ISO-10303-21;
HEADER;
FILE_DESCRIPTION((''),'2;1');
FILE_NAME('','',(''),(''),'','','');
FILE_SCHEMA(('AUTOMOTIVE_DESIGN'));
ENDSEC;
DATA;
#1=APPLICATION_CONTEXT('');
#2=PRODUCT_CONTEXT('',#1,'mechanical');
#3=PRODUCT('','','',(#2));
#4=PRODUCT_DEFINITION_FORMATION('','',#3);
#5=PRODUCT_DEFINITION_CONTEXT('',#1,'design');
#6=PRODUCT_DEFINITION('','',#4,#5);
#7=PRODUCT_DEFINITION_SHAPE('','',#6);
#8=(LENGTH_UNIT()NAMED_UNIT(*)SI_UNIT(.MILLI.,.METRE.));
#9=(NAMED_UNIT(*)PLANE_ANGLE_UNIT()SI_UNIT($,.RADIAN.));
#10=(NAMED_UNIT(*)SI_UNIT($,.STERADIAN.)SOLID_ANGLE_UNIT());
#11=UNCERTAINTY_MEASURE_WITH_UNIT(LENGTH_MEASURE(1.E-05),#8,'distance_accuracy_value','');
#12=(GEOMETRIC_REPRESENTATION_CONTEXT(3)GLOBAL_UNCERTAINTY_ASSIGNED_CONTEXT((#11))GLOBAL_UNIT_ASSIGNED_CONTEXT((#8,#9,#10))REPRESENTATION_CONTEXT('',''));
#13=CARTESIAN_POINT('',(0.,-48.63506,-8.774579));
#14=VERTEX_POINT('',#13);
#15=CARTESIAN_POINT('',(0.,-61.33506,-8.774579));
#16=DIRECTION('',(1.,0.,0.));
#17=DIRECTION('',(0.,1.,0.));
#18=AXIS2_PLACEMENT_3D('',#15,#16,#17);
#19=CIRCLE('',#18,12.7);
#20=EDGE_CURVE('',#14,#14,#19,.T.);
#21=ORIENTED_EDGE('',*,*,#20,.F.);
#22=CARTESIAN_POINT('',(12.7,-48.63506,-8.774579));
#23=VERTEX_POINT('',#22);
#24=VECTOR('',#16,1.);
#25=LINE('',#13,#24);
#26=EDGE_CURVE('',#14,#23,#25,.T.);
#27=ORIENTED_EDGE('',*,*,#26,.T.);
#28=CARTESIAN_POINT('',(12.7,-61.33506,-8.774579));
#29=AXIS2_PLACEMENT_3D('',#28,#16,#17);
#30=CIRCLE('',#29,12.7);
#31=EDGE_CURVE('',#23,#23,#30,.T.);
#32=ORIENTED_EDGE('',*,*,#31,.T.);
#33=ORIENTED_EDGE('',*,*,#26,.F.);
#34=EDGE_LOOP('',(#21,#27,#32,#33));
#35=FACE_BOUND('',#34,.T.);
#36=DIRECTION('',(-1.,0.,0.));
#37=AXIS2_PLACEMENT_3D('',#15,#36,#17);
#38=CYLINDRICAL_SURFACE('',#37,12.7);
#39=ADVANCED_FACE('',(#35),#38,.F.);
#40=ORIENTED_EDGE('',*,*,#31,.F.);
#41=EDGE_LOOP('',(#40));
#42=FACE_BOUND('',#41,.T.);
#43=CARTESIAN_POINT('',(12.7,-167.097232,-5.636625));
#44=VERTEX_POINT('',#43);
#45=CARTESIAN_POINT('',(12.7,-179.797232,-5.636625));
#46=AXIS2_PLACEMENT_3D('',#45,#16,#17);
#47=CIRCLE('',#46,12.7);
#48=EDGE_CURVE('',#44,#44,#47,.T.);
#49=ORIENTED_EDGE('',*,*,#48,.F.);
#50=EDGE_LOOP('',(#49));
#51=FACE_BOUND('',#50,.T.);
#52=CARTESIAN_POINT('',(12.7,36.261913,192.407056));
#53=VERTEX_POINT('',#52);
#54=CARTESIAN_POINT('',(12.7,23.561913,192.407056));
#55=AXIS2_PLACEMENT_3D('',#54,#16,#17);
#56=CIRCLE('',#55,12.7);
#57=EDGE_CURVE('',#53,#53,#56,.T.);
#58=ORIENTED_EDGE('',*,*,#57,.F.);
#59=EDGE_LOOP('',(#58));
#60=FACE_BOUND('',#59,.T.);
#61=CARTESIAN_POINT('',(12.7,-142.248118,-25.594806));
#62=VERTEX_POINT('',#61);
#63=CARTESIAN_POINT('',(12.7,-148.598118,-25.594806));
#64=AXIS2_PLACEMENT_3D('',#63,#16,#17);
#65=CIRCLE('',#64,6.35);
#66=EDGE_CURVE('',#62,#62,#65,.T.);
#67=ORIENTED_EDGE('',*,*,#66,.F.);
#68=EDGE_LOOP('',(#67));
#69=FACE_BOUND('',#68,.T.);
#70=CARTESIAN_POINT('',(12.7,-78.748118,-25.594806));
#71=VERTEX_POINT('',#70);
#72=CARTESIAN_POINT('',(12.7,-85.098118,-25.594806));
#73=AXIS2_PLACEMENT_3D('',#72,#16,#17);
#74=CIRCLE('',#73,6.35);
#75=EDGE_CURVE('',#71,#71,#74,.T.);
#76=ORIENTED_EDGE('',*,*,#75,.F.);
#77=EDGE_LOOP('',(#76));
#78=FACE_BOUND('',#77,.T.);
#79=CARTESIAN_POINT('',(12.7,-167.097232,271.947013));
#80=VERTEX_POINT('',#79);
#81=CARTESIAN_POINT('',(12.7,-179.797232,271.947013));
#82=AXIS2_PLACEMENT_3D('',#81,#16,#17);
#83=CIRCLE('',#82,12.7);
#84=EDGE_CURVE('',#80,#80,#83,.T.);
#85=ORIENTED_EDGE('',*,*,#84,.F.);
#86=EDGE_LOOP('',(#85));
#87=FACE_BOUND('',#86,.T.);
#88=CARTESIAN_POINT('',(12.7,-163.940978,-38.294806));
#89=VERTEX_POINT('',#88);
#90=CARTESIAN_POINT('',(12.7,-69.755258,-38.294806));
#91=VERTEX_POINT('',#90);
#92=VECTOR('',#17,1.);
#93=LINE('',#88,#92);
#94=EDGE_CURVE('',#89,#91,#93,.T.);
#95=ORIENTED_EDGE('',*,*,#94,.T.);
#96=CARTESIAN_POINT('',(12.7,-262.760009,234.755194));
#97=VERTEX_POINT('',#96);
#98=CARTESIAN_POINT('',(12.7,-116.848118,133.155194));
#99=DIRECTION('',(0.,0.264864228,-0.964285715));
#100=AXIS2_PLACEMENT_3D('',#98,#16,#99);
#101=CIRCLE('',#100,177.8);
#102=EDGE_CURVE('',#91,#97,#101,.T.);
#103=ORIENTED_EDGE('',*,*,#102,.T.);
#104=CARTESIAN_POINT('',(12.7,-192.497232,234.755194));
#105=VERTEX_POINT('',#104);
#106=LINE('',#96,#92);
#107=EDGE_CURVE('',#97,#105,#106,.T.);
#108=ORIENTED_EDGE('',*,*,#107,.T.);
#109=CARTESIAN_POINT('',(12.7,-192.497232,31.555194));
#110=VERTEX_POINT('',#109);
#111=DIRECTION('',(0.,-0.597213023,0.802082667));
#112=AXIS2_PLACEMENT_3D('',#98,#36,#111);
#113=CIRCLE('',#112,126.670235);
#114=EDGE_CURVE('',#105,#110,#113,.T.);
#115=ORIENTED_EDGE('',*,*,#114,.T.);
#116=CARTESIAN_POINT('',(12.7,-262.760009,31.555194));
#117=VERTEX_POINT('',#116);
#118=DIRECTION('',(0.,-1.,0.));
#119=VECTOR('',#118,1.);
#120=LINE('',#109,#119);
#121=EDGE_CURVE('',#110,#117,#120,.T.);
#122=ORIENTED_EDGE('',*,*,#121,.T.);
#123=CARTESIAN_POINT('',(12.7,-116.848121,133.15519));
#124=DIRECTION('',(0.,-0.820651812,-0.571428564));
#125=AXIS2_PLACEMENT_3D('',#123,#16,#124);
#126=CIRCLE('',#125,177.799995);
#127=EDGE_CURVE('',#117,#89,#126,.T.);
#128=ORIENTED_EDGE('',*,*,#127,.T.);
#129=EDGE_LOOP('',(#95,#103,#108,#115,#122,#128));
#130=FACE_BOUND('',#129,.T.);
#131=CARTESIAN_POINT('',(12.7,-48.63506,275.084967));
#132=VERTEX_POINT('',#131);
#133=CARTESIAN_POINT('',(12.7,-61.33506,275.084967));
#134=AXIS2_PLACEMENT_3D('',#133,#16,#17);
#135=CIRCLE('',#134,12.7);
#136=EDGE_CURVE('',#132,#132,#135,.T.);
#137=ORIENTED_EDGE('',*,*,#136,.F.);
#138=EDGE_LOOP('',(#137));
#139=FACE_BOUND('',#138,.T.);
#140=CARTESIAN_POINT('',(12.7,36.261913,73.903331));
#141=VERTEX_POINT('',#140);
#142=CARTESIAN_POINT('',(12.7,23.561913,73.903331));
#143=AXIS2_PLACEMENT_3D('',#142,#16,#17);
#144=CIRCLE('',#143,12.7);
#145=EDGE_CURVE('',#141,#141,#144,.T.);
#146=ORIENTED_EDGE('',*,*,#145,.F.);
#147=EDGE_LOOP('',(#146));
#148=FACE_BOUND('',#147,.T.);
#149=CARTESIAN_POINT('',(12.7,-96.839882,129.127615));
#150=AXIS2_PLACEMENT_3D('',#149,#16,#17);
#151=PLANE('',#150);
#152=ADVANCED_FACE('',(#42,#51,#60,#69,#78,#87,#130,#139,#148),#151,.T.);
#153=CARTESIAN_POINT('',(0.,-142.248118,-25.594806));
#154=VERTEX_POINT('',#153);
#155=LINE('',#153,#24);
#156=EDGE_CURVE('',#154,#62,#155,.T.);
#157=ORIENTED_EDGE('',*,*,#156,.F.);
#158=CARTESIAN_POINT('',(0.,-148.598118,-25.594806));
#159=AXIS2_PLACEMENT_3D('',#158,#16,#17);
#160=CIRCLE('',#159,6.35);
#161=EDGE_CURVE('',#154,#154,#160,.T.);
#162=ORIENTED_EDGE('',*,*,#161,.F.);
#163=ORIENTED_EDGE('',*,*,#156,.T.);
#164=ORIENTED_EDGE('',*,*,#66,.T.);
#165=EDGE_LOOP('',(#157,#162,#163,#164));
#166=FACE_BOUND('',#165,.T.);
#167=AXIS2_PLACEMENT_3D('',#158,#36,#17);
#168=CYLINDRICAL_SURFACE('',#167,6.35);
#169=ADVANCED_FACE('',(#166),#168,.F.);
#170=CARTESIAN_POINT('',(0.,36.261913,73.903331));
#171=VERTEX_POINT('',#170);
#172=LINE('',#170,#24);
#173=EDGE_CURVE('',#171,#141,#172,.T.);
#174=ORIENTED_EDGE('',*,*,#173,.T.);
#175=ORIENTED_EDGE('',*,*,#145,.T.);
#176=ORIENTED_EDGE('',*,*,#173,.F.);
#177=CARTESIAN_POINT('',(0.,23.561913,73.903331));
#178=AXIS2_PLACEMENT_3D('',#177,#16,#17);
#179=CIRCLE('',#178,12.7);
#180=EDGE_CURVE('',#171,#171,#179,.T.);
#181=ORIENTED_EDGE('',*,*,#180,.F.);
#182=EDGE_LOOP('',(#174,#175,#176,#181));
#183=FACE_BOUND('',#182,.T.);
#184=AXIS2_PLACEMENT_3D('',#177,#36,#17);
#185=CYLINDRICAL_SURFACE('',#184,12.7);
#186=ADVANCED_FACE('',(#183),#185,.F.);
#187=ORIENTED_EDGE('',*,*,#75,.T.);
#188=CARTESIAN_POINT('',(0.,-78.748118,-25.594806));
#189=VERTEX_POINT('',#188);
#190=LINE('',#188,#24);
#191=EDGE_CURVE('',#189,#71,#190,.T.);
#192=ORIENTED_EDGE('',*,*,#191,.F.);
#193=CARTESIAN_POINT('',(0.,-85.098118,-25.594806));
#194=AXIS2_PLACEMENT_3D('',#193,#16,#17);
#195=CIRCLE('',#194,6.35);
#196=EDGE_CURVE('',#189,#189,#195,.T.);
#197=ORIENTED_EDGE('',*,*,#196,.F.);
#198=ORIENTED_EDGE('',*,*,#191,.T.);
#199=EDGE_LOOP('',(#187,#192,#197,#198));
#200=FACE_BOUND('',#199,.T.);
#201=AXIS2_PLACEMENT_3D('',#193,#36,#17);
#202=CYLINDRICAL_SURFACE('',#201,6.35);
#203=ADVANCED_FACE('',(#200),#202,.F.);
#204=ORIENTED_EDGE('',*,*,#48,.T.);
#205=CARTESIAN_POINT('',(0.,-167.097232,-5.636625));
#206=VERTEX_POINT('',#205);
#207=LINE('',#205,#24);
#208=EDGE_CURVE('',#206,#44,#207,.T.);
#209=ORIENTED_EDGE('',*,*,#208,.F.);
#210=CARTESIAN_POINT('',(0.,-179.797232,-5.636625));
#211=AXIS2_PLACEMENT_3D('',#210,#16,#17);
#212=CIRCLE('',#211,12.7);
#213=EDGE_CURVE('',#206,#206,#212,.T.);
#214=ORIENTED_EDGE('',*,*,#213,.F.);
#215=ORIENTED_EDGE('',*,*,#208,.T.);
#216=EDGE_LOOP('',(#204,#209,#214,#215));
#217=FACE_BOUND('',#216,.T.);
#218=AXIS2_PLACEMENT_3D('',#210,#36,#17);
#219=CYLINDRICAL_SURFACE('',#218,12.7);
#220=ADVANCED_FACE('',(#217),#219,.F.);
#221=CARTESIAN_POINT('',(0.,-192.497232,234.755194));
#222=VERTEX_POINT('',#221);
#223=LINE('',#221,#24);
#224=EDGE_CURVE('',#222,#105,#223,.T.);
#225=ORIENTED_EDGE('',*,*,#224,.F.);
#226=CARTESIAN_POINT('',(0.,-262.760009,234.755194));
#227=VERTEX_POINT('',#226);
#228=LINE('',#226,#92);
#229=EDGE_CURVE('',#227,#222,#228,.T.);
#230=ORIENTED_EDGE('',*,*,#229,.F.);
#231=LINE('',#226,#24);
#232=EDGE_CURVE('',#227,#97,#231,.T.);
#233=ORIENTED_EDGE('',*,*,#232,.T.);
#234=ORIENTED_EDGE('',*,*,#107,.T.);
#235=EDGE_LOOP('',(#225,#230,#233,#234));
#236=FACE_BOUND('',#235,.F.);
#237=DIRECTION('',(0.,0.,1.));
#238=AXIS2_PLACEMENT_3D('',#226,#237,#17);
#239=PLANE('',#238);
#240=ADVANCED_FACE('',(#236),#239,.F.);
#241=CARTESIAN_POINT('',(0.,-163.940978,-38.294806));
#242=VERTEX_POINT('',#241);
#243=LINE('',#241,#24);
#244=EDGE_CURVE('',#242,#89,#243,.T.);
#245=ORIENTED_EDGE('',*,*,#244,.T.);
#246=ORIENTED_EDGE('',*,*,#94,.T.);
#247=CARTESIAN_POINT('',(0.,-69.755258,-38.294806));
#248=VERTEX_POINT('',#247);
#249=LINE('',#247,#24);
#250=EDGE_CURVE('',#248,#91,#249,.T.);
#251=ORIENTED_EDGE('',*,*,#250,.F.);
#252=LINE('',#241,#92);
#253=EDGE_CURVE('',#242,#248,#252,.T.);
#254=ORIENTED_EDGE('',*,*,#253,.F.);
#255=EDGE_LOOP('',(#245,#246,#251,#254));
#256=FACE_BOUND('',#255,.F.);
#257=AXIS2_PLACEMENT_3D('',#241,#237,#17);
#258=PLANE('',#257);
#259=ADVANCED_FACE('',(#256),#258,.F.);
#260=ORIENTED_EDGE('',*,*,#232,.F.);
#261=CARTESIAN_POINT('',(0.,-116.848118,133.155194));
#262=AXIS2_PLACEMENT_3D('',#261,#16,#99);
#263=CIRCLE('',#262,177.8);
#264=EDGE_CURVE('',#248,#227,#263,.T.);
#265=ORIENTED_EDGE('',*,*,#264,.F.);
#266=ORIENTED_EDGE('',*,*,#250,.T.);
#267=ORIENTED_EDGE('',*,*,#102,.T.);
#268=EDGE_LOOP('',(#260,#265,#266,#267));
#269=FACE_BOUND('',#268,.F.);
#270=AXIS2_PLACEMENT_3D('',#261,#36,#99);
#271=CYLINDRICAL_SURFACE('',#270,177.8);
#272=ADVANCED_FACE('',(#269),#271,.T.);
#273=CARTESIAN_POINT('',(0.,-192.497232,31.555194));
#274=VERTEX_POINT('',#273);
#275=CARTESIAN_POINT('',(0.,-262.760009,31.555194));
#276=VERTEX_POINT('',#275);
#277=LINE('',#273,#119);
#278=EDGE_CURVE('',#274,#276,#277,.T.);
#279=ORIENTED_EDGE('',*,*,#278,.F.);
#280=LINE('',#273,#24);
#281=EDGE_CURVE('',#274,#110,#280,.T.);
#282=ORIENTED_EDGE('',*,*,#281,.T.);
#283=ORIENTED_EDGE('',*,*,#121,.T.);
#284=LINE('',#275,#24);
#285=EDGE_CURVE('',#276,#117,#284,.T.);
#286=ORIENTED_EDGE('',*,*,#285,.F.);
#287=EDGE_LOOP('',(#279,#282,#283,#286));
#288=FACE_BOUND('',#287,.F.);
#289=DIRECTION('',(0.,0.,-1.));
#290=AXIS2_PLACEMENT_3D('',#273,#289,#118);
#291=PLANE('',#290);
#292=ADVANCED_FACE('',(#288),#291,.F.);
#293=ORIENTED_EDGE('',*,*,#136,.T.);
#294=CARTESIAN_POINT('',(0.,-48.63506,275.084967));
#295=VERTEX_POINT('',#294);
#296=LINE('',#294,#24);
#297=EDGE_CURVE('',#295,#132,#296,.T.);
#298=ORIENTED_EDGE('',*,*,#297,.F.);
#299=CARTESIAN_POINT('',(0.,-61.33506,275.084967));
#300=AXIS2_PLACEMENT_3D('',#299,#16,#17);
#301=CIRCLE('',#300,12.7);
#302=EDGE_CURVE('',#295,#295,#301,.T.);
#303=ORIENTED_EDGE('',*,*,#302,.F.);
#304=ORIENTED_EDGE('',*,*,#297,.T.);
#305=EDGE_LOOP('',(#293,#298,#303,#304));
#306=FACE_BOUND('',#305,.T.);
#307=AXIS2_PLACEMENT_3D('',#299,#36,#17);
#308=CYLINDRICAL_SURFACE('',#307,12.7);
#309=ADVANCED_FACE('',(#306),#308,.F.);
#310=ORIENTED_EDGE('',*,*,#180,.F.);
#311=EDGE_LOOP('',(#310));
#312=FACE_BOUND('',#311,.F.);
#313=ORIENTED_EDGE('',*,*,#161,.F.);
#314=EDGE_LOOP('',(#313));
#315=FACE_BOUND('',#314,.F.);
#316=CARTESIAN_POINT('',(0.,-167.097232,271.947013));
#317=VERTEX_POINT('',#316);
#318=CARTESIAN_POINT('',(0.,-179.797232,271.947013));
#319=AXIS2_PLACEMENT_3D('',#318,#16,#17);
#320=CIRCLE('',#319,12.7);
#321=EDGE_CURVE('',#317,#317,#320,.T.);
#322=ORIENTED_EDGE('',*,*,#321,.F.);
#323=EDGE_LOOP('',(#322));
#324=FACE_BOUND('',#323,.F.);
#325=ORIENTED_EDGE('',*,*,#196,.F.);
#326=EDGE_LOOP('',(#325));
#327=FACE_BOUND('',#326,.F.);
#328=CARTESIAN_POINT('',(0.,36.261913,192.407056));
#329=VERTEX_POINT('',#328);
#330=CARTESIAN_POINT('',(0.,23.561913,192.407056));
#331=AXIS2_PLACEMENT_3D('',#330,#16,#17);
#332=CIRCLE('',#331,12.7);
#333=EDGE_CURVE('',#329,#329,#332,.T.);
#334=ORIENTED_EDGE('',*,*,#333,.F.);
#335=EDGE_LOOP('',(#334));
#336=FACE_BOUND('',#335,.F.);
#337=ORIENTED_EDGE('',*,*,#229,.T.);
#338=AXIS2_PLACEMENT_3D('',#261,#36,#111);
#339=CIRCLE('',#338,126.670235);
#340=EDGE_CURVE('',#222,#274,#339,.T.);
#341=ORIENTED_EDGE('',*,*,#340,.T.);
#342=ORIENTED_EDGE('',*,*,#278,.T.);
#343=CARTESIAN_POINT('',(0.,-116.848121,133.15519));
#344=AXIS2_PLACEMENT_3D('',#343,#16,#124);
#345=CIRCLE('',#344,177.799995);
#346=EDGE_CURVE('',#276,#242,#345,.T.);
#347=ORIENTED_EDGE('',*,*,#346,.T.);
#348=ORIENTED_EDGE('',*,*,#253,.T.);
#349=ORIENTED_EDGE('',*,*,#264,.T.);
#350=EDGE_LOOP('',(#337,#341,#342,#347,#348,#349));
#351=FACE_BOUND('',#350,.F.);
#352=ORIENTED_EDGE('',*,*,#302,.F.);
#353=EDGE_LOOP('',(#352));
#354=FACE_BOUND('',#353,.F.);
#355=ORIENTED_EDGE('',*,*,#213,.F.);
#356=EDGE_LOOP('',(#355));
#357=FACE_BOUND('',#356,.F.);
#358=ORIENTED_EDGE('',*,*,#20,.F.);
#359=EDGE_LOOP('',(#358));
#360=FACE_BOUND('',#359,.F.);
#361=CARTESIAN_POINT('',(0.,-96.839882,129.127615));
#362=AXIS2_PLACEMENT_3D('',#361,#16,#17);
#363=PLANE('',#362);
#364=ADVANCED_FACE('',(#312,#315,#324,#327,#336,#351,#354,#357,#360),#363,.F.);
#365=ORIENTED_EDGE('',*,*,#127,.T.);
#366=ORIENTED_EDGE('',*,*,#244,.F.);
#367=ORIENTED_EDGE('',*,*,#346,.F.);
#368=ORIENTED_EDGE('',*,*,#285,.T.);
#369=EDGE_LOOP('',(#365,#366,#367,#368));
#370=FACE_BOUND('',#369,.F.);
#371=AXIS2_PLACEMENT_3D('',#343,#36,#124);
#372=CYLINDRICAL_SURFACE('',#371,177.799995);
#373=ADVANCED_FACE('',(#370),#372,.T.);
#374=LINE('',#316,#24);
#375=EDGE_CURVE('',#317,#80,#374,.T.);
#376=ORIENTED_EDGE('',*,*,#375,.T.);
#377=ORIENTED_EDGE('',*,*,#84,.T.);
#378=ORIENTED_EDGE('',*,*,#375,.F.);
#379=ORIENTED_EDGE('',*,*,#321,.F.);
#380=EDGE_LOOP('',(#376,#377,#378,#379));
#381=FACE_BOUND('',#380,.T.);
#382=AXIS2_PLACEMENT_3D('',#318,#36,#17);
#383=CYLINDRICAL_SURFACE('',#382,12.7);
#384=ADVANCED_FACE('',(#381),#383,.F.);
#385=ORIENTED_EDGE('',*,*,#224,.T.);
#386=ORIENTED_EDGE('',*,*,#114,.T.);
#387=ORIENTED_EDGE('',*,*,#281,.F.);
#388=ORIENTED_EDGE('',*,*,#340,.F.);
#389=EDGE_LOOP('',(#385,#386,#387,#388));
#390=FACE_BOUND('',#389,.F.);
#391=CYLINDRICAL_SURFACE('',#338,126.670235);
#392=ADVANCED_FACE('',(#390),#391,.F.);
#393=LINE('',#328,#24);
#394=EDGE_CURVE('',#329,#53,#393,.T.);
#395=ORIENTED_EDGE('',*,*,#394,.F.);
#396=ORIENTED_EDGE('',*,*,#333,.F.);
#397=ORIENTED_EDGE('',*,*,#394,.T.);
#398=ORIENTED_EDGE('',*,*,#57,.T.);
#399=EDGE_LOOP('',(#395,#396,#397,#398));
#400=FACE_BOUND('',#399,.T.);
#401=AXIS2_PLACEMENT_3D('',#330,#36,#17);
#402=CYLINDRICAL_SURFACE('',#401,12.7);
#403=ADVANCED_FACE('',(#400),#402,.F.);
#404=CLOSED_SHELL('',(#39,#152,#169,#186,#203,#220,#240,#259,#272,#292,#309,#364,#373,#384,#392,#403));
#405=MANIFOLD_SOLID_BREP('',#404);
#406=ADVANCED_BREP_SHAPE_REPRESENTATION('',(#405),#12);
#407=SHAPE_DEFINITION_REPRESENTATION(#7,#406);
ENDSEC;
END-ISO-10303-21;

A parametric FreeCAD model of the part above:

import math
import FreeCAD as App
import Part
import Sketcher
Q = App.Units.Quantity

doc = App.newDocument("Part")
body = doc.addObject("PartDesign::Body", "Body")

sketch1 = body.newObject("Sketcher::SketchObject", "Sketch")
sketch1.AttachmentSupport = (doc.getObject("YZ_Plane"), [""])
sketch1.MapMode = "FlatFace"
sketch1.addGeometry([
    Part.LineSegment(App.Vector(-192.497232, 31.555194, 0), App.Vector(-262.760009, 31.555194, 0)),
    Part.ArcOfCircle(Part.Circle(App.Vector(-116.848121, 133.15519, 0), App.Vector(0, 0, 1), 177.799995), math.radians(-145.150096), math.radians(-105.358885)),
    Part.LineSegment(App.Vector(-163.940978, -38.294806, 0), App.Vector(-69.755258, -38.294806, 0)),
    Part.ArcOfCircle(Part.Circle(App.Vector(-116.848118, 133.155194, 0), App.Vector(0, 0, 1), 177.8), math.radians(-74.641115), math.radians(145.150095)),
    Part.LineSegment(App.Vector(-262.760009, 234.755194, 0), App.Vector(-192.497232, 234.755194, 0)),
    Part.ArcOfCircle(Part.Circle(App.Vector(-116.848118, 133.155194, 0), App.Vector(0, 0, 1), 126.670235), math.radians(-126.670555), math.radians(126.670555)),
    Part.Circle(App.Vector(-179.797232, -5.636625, 0), App.Vector(0, 0, 1), 12.7),
    Part.Circle(App.Vector(-148.598118, -25.594806, 0), App.Vector(0, 0, 1), 6.35),
    Part.Circle(App.Vector(-85.098118, -25.594806, 0), App.Vector(0, 0, 1), 6.35),
    Part.Circle(App.Vector(-61.33506, -8.774579, 0), App.Vector(0, 0, 1), 12.7),
    Part.Circle(App.Vector(23.561913, 73.903331, 0), App.Vector(0, 0, 1), 12.7),
    Part.Circle(App.Vector(-179.797232, 271.947013, 0), App.Vector(0, 0, 1), 12.7),
    Part.Circle(App.Vector(23.561913, 192.407056, 0), App.Vector(0, 0, 1), 12.7),
    Part.Circle(App.Vector(-61.33506, 275.084967, 0), App.Vector(0, 0, 1), 12.7),
], False)
sketch1.addConstraint([
    Sketcher.Constraint("Coincident", 0, 2, 1, 1),
    Sketcher.Constraint("Coincident", 1, 2, 2, 1),
    Sketcher.Constraint("Coincident", 2, 2, 3, 1),
    Sketcher.Constraint("Coincident", 3, 2, 4, 1),
    Sketcher.Constraint("Coincident", 4, 2, 5, 2),
    Sketcher.Constraint("Coincident", 5, 1, 0, 1),
    Sketcher.Constraint("Horizontal", 0),
    Sketcher.Constraint("Horizontal", 2),
    Sketcher.Constraint("Horizontal", 4),
    Sketcher.Constraint("Coincident", 3, 3, 1, 3),
    Sketcher.Constraint("Coincident", 5, 3, 1, 3),
    Sketcher.Constraint("Equal", 7, 8),
    Sketcher.Constraint("Equal", 6, 9),
    Sketcher.Constraint("Equal", 9, 10),
    Sketcher.Constraint("Equal", 10, 11),
    Sketcher.Constraint("Equal", 11, 12),
    Sketcher.Constraint("Equal", 12, 13),
    Sketcher.Constraint("Horizontal", 7, 3, 8, 3),
    Sketcher.Constraint("Vertical", 6, 3, 11, 3),
    Sketcher.Constraint("Vertical", 10, 3, 12, 3),
    Sketcher.Constraint("Vertical", 9, 3, 13, 3),
    Sketcher.Constraint("Vertical", 0, 2, 3, 2),
    Sketcher.Constraint("Vertical", 4, 2, 5, 1),
    Sketcher.Constraint("Diameter", 6, Q("1 in")),
    Sketcher.Constraint("Radius", 1, Q("6.9999998 in")),
    Sketcher.Constraint("Diameter", 7, Q("0.5 in")),
    Sketcher.Constraint("DistanceY", 0, 2, 1, 3, Q("3.9999998 in")),
    Sketcher.Constraint("DistanceX", 7, 3, 8, 3, Q("2.5 in")),
    Sketcher.Constraint("DistanceY", 1, 2, 7, 3, Q("0.5 in")),
    Sketcher.Constraint("DistanceX", 4, 2, 11, 3, Q("0.5 in")),
    Sketcher.Constraint("DistanceX", 7, 3, 1, 3, Q("1.2499999 in")),
    Sketcher.Constraint("DistanceY", 7, 3, 1, 3, Q("6.2499998 in")),
    Sketcher.Constraint("Radius", 5, Q("126.670235 mm")),
    Sketcher.Constraint("DistanceX", 1, 3, -1, 1, Q("116.848121 mm")),
    Sketcher.Constraint("DistanceY", -1, 1, 1, 3, Q("133.15519 mm")),
    Sketcher.Constraint("DistanceX", 9, 3, -1, 1, Q("61.33506 mm")),
    Sketcher.Constraint("DistanceY", 9, 3, -1, 1, Q("8.774579 mm")),
    Sketcher.Constraint("DistanceY", -1, 1, 10, 3, Q("73.903331 mm")),
    Sketcher.Constraint("DistanceY", 6, 3, 5, 3, Q("138.791819 mm")),
    Sketcher.Constraint("DistanceX", 8, 3, 10, 3, Q("108.660031 mm")),
    Sketcher.Constraint("DistanceY", 5, 3, 11, 3, Q("138.791819 mm")),
    Sketcher.Constraint("DistanceY", 3, 3, 12, 3, Q("59.251862 mm")),
    Sketcher.Constraint("DistanceY", 12, 3, 13, 3, Q("82.677911 mm")),
])
pad1 = body.newObject("PartDesign::Pad", "Pad")
pad1.Profile = sketch1
pad1.Length = Q("0.5 in")

doc.recompute()
